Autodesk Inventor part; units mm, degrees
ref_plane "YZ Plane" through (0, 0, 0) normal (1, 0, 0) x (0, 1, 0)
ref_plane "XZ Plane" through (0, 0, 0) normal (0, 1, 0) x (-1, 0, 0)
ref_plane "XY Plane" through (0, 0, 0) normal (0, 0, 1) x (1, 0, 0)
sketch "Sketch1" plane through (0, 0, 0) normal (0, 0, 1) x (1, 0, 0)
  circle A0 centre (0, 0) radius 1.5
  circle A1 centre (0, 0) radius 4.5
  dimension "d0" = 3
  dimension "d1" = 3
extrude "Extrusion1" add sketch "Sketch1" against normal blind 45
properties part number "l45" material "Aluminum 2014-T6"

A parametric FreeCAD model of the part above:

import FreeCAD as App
import Part
import Sketcher
Q = App.Units.Quantity

doc = App.newDocument("Part")
params = doc.addObject("Spreadsheet::Sheet", "Params")
for row, (alias, value) in enumerate([
    ("sketch1_diameter", "3 mm"),
    ("sketch1_diameter2", "9 mm"),
    ("pad1_length", "45 mm"),
], start=1):
    params.set(f"A{row}", alias)
    params.set(f"B{row}", "=" + value)
    params.setAlias(f"B{row}", alias)

body = doc.addObject("PartDesign::Body", "Body")

# Sketch on XY plane
sketch1 = doc.addObject("Sketcher::SketchObject", "Sketch")
body.addObject(sketch1)
sketch1.AttachmentSupport = (doc.XY_Plane, [""])
sketch1.MapMode = "FlatFace"
sketch1.addGeometry([
    Part.Circle(App.Vector(0, 0, 0), App.Vector(0, 0, 1), 4.5),
    Part.Circle(App.Vector(0, 0, 0), App.Vector(0, 0, 1), 1.5),
], False)
sketch1.addConstraint([
    Sketcher.Constraint("Coincident", 0, 3, -1, 1),
    Sketcher.Constraint("Coincident", 1, 3, -1, 1),
    Sketcher.Constraint("Diameter", 1, Q("3 mm")),
    Sketcher.Constraint("Diameter", 0, Q("9 mm")),
])
sketch1.setExpression("Constraints[2]", "Params.sketch1_diameter")
sketch1.setExpression("Constraints[3]", "Params.sketch1_diameter2")
pad1 = doc.addObject("PartDesign::Pad", "Pad")
body.addObject(pad1)
pad1.Profile = sketch1
pad1.setExpression("Length", "Params.pad1_length")
pad1.Reversed = True

doc.recompute()
